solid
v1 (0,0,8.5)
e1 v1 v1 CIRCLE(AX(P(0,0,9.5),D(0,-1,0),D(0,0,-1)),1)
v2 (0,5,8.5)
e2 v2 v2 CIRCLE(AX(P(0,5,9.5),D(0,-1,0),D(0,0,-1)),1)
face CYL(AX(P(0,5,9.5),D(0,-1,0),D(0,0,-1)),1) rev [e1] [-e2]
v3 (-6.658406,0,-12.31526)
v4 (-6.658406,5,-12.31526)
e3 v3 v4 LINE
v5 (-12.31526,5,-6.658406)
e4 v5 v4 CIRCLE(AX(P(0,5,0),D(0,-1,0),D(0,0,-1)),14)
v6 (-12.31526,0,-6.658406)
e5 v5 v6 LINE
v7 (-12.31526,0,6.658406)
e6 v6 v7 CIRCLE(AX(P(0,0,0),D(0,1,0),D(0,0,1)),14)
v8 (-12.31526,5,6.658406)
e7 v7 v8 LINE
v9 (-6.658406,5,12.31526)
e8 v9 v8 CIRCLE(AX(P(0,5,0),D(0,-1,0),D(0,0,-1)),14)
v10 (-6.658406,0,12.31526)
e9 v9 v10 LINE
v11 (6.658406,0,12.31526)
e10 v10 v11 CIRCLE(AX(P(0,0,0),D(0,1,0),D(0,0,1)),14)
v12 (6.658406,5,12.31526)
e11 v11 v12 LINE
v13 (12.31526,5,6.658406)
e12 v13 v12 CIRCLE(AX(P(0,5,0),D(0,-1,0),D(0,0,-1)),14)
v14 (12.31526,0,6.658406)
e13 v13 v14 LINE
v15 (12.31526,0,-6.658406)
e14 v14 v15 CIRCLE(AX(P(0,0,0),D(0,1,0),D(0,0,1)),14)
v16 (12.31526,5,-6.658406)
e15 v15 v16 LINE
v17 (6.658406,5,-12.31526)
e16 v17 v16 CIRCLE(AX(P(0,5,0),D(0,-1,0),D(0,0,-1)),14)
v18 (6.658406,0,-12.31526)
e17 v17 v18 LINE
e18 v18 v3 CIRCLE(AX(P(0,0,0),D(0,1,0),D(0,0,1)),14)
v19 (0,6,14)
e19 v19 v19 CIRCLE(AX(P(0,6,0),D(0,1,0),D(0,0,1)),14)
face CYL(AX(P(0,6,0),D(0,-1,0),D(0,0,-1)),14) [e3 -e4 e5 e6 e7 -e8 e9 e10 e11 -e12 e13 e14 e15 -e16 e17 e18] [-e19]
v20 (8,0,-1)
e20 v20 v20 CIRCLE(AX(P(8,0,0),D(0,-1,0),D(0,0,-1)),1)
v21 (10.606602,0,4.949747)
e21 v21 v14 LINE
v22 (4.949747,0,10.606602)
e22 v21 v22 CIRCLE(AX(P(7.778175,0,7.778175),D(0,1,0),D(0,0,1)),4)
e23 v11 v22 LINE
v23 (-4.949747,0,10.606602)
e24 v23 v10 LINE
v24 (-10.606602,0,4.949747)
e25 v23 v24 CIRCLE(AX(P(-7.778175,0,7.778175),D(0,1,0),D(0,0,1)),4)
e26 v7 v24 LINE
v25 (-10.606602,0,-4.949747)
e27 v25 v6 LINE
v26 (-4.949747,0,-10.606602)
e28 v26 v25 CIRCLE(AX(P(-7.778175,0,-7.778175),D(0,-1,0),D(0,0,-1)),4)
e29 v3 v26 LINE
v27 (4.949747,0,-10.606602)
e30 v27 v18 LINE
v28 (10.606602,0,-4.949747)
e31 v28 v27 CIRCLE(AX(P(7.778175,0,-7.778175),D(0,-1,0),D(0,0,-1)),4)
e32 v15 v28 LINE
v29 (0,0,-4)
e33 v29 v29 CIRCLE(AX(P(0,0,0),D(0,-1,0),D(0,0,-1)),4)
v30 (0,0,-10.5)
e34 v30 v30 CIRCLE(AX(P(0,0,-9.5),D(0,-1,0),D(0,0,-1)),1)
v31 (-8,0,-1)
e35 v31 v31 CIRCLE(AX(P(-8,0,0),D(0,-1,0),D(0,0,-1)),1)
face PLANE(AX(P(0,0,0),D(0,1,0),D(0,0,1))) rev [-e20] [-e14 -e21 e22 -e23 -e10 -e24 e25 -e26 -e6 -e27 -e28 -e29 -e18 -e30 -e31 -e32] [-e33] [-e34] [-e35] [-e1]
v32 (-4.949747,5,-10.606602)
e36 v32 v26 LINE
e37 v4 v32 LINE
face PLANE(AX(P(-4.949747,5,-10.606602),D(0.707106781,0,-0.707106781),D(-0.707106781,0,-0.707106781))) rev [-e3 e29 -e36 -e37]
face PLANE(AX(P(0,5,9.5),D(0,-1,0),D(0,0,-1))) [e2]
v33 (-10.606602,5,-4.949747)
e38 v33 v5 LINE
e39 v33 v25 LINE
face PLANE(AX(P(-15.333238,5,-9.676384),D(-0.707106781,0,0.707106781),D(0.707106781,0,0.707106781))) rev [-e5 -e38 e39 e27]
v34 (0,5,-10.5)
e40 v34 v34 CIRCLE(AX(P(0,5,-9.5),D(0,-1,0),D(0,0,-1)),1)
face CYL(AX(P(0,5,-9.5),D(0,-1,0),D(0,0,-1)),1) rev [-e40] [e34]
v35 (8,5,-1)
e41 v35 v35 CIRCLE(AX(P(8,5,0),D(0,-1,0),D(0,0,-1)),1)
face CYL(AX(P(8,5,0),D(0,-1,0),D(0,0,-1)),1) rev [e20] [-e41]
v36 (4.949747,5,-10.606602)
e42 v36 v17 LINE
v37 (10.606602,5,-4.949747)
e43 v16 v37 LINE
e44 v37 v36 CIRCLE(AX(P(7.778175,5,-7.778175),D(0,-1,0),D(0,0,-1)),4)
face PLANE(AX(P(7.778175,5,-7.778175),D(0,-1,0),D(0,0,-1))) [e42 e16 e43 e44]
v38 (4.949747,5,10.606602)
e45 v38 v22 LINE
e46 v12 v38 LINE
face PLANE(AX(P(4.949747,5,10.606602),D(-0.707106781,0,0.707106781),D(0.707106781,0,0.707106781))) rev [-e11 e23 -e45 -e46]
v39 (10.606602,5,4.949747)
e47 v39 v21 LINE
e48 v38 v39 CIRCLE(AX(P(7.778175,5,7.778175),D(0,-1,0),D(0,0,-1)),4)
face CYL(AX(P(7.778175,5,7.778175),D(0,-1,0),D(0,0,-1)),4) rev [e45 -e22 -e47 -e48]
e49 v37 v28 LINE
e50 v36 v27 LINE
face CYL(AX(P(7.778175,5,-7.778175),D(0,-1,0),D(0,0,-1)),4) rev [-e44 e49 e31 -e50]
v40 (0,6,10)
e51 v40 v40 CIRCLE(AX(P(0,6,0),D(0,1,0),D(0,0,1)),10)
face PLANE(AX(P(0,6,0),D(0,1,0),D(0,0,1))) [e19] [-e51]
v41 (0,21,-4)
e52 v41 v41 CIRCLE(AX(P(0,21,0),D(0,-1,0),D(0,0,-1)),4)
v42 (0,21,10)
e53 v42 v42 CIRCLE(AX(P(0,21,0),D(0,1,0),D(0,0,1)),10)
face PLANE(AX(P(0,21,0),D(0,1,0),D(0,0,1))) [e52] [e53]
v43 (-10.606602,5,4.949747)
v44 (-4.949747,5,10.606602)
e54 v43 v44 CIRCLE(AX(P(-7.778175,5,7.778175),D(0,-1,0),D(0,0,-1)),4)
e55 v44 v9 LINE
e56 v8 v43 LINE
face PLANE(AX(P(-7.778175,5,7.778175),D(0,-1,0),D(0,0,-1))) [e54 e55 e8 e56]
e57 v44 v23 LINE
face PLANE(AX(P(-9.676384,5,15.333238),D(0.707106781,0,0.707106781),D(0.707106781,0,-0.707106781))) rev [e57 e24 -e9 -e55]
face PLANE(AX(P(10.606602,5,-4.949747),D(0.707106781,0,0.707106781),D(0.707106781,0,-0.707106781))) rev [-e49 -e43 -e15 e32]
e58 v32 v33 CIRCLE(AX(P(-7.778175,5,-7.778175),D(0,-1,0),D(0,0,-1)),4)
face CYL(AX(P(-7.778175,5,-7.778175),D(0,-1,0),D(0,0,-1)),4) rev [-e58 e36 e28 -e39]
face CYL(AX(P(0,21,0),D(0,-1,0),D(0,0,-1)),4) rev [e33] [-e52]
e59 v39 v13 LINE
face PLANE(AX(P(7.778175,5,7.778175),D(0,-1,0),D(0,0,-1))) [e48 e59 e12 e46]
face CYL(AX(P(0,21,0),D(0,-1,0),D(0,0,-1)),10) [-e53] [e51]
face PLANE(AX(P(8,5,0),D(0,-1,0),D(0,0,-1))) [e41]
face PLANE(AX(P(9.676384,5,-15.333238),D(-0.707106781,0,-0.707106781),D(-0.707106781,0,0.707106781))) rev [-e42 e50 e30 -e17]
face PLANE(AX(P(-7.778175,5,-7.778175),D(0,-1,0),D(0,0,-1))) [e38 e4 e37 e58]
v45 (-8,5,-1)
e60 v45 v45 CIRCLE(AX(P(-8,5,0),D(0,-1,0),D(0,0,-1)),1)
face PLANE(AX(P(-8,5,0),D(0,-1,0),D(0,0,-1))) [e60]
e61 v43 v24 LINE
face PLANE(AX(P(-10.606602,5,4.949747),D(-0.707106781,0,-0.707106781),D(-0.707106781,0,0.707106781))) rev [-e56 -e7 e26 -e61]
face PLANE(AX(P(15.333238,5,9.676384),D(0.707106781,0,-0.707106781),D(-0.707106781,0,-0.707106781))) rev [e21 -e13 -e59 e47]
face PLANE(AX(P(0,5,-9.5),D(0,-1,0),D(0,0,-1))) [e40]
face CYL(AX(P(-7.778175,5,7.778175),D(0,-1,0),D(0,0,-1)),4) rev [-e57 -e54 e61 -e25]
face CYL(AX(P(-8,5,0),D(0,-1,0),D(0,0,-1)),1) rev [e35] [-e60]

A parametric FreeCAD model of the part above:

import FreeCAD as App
import Part
import Sketcher
from FreeCAD import Vector
Q = App.Units.Quantity


def add_polygon(sketch, points):
    """Adds a closed chain of lines whose ends are joined by coincident constraints."""
    first, n = sketch.GeometryCount, len(points)
    for a, b in zip(points, points[1:] + points[:1]):
        sketch.addGeometry(Part.LineSegment(App.Vector(*a, 0), App.Vector(*b, 0)), False)
    for i in range(n):
        sketch.addConstraint(Sketcher.Constraint("Coincident", first + i, 2, first + (i + 1) % n, 1))

doc = App.newDocument("Part")
body = doc.addObject("PartDesign::Body", "Body")

# Sketch on XZ plane
sketch1 = doc.addObject("Sketcher::SketchObject", "Sketch")
body.addObject(sketch1)
sketch1.AttachmentSupport = (doc.XZ_Plane, [""])
sketch1.MapMode = "FlatFace"
sketch1.addGeometry(Part.Circle(Vector(0, 0, 0), Vector(0, 0, 1), 14), False)
sketch1.addConstraint(Sketcher.Constraint("Coincident", 0, 3, -1, 1))
sketch1.addConstraint(Sketcher.Constraint("Diameter", 0, 28.0))
pad1 = doc.addObject("PartDesign::Pad", "Pad")
body.addObject(pad1)
pad1.Profile = sketch1
pad1.Length = 6
pad1.Reversed = True

# Sketch on XZ plane
sketch2 = doc.addObject("Sketcher::SketchObject", "Sketch001")
body.addObject(sketch2)
sketch2.AttachmentSupport = (doc.XZ_Plane, [""])
sketch2.MapMode = "FlatFace"
sketch2.AttachmentOffset = App.Placement(Vector(0, 0, -6), App.Rotation())
sketch2.addGeometry(Part.Circle(Vector(0, 0, 0), Vector(0, 0, 1), 10), False)
sketch2.addConstraint(Sketcher.Constraint("Coincident", 0, 3, -1, 1))
sketch2.addConstraint(Sketcher.Constraint("Diameter", 0, 20.0))
pad2 = doc.addObject("PartDesign::Pad", "Pad001")
body.addObject(pad2)
pad2.Profile = sketch2
pad2.Length = 15
pad2.Reversed = True

# Sketch on XZ plane
sketch3 = doc.addObject("Sketcher::SketchObject", "Sketch002")
body.addObject(sketch3)
sketch3.AttachmentSupport = (doc.XZ_Plane, [""])
sketch3.MapMode = "FlatFace"
sketch3.addGeometry(Part.Circle(Vector(-8, 0, 0), Vector(0, 0, 1), 1), False)
sketch3.addGeometry(Part.Circle(Vector(8, 0, 0), Vector(0, 0, 1), 1), False)
sketch3.addGeometry(Part.Circle(Vector(0, 9.5, 0), Vector(0, 0, 1), 1), False)
sketch3.addGeometry(Part.Circle(Vector(0, -9.5, 0), Vector(0, 0, 1), 1), False)
sketch3.addGeometry(Part.Circle(Vector(-7.8, 7.8, 0), Vector(0, 0, 1), 4), False)
sketch3.addGeometry(Part.Circle(Vector(7.8, 7.8, 0), Vector(0, 0, 1), 4), False)
sketch3.addGeometry(Part.Circle(Vector(7.8, -7.8, 0), Vector(0, 0, 1), 4), False)
sketch3.addGeometry(Part.Circle(Vector(-7.8, -7.8, 0), Vector(0, 0, 1), 4), False)
sketch3.addConstraint(Sketcher.Constraint("Equal", 0, 1))
sketch3.addConstraint(Sketcher.Constraint("Equal", 1, 2))
sketch3.addConstraint(Sketcher.Constraint("Equal", 2, 3))
sketch3.addConstraint(Sketcher.Constraint("Equal", 4, 5))
sketch3.addConstraint(Sketcher.Constraint("Equal", 5, 6))
sketch3.addConstraint(Sketcher.Constraint("Equal", 6, 7))
sketch3.addConstraint(Sketcher.Constraint("Symmetric", 0, 3, 1, 3, -1, 1))
sketch3.addConstraint(Sketcher.Constraint("Symmetric", 2, 3, 3, 3, -1, 1))
sketch3.addConstraint(Sketcher.Constraint("Symmetric", 4, 3, 6, 3, -1, 1))
sketch3.addConstraint(Sketcher.Constraint("Symmetric", 5, 3, 7, 3, -1, 1))
sketch3.addConstraint(Sketcher.Constraint("Symmetric", 4, 3, 5, 3, -2))
sketch3.addConstraint(Sketcher.Constraint("PointOnObject", 0, 3, -1))
sketch3.addConstraint(Sketcher.Constraint("PointOnObject", 2, 3, -2))
sketch3.addConstraint(Sketcher.Constraint("Diameter", 0, 2.0))
sketch3.addConstraint(Sketcher.Constraint("Diameter", 4, 8.0))
sketch3.addConstraint(Sketcher.Constraint("DistanceX", 0, 3, -1, 1, 8.0))
sketch3.addConstraint(Sketcher.Constraint("DistanceY", 3, 3, 2, 3, 19.0))
sketch3.addConstraint(Sketcher.Constraint("DistanceX", 4, 3, 5, 3, 15.556349))
sketch3.addConstraint(Sketcher.Constraint("DistanceY", 6, 3, 5, 3, 15.556349))
pocket1 = doc.addObject("PartDesign::Pocket", "Pocket")
body.addObject(pocket1)
pocket1.Profile = sketch3
pocket1.Length = 5

# Sketch on XZ plane
sketch4 = doc.addObject("Sketcher::SketchObject", "Sketch003")
body.addObject(sketch4)
sketch4.AttachmentSupport = (doc.XZ_Plane, [""])
sketch4.MapMode = "FlatFace"
add_polygon(sketch4, [(-11, 5), (-5, 11), (-10, 15), (-15, 10)])  # lines 0-3
sketch4.addConstraint(Sketcher.Constraint("Perpendicular", 0, 1))
sketch4.addConstraint(Sketcher.Constraint("Perpendicular", 1, 2))
sketch4.addConstraint(Sketcher.Constraint("Perpendicular", 2, 3))
sketch4.addConstraint(Sketcher.Constraint("Angle", 0, Q("45 deg")))
sketch4.addConstraint(Sketcher.Constraint("Distance", 0, 8.0))
sketch4.addConstraint(Sketcher.Constraint("DistanceY", -1, 1, 0, 2, 10.606602))
sketch4.addConstraint(Sketcher.Constraint("DistanceX", 3, 2, -1, 1, 10.606602))
sketch4.addConstraint(Sketcher.Constraint("DistanceY", -1, 1, 1, 2, 15.333238))
pocket2 = doc.addObject("PartDesign::Pocket", "Pocket001")
body.addObject(pocket2)
pocket2.Profile = sketch4
pocket2.Length = 5
doc.recompute()

polarpattern = doc.addObject("PartDesign::PolarPattern", "PolarPattern")
body.addObject(polarpattern)
polarpattern.Originals = [pocket2]
polarpattern.Axis = (doc.Y_Axis, [""])
polarpattern.Angle = 360
polarpattern.Occurrences = 4
body.Tip = polarpattern

# Sketch on XZ plane
sketch5 = doc.addObject("Sketcher::SketchObject", "Sketch004")
body.addObject(sketch5)
sketch5.AttachmentSupport = (doc.XZ_Plane, [""])
sketch5.MapMode = "FlatFace"
sketch5.addGeometry(Part.Circle(Vector(0, 0, 0), Vector(0, 0, 1), 4), False)
sketch5.addConstraint(Sketcher.Constraint("Coincident", 0, 3, -1, 1))
sketch5.addConstraint(Sketcher.Constraint("Diameter", 0, 8.0))
pocket3 = doc.addObject("PartDesign::Pocket", "Pocket002")
body.addObject(pocket3)
pocket3.Profile = sketch5
pocket3.Type = "ThroughAll"

doc.recompute()
